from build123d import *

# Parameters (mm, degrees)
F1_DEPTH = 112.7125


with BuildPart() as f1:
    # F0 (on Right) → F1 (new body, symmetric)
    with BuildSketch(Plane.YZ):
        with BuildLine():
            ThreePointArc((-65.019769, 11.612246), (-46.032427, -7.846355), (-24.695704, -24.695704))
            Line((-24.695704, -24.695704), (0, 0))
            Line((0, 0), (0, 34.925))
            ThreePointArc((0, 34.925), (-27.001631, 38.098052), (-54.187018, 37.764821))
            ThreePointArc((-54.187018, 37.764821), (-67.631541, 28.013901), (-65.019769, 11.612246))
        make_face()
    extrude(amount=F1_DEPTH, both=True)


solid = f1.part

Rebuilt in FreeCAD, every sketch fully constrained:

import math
import FreeCAD as App
import Part
import Sketcher
from FreeCAD import Vector
Q = App.Units.Quantity

doc = App.newDocument("Part")
body = doc.addObject("PartDesign::Body", "Body")

# Sketch on YZ plane
sketch1 = body.newObject("Sketcher::SketchObject", "Sketch")
sketch1.AttachmentSupport = (doc.getObject("YZ_Plane"), [""])
sketch1.MapMode = "FlatFace"
sketch1.addGeometry(Part.ArcOfCircle(Part.Circle(Vector(94.833064, 148.600627, 0), Vector(0, 0, 1), 210.520177), math.radians(-139.40456), math.radians(-124.595438)), False)
sketch1.addGeometry(Part.LineSegment(Vector(-24.695704, -24.695704, 0), Vector(0, 0, 0)), False)
sketch1.addGeometry(Part.LineSegment(Vector(0, 0, 0), Vector(0, 34.925, 0)), False)
sketch1.addGeometry(Part.ArcOfCircle(Part.Circle(Vector(-38.019405, -172.133621, 0), Vector(0, 0, 1), 210.520183), math.radians(79.595439), math.radians(94.404561)), False)
sketch1.addGeometry(Part.ArcOfCircle(Part.Circle(Vector(-52.968105, 21.940107, 0), Vector(0, 0, 1), 15.871588), math.radians(94.404561), math.radians(220.59544)), False)
sketch1.addConstraint(Sketcher.Constraint("Coincident", 0, 2, 1, 1))
sketch1.addConstraint(Sketcher.Constraint("Coincident", 1, 2, 2, 1))
sketch1.addConstraint(Sketcher.Constraint("Coincident", 2, 2, 3, 1))
sketch1.addConstraint(Sketcher.Constraint("Tangent", 3, 2, 4, 1))
sketch1.addConstraint(Sketcher.Constraint("Tangent", 4, 2, 0, 1))
sketch1.addConstraint(Sketcher.Constraint("Vertical", 2))
sketch1.addConstraint(Sketcher.Constraint("Coincident", 1, 2, -1, 1))
sketch1.addConstraint(Sketcher.Constraint("Angle", 1, Q("45 deg")))
sketch1.addConstraint(Sketcher.Constraint("DistanceY", 2, 1, 2, 2, Q("1.375 in")))
sketch1.addConstraint(Sketcher.Constraint("Distance", 1, Q("1.375 in")))
sketch1.addConstraint(Sketcher.Constraint("Radius", 4, 15.871588))
sketch1.addConstraint(Sketcher.Constraint("Radius", 0, 210.520177))
sketch1.addConstraint(Sketcher.Constraint("Radius", 3, 210.520183))
sketch1.addConstraint(Sketcher.Constraint("DistanceX", 4, 3, 3, 3, 14.948701))
sketch1.addConstraint(Sketcher.Constraint("DistanceY", 3, 3, -1, 1, 172.133621))
pad1 = body.newObject("PartDesign::Pad", "Pad")
pad1.Profile = sketch1
pad1.Length = Q("8.875 in")
pad1.Midplane = True

doc.recompute()
